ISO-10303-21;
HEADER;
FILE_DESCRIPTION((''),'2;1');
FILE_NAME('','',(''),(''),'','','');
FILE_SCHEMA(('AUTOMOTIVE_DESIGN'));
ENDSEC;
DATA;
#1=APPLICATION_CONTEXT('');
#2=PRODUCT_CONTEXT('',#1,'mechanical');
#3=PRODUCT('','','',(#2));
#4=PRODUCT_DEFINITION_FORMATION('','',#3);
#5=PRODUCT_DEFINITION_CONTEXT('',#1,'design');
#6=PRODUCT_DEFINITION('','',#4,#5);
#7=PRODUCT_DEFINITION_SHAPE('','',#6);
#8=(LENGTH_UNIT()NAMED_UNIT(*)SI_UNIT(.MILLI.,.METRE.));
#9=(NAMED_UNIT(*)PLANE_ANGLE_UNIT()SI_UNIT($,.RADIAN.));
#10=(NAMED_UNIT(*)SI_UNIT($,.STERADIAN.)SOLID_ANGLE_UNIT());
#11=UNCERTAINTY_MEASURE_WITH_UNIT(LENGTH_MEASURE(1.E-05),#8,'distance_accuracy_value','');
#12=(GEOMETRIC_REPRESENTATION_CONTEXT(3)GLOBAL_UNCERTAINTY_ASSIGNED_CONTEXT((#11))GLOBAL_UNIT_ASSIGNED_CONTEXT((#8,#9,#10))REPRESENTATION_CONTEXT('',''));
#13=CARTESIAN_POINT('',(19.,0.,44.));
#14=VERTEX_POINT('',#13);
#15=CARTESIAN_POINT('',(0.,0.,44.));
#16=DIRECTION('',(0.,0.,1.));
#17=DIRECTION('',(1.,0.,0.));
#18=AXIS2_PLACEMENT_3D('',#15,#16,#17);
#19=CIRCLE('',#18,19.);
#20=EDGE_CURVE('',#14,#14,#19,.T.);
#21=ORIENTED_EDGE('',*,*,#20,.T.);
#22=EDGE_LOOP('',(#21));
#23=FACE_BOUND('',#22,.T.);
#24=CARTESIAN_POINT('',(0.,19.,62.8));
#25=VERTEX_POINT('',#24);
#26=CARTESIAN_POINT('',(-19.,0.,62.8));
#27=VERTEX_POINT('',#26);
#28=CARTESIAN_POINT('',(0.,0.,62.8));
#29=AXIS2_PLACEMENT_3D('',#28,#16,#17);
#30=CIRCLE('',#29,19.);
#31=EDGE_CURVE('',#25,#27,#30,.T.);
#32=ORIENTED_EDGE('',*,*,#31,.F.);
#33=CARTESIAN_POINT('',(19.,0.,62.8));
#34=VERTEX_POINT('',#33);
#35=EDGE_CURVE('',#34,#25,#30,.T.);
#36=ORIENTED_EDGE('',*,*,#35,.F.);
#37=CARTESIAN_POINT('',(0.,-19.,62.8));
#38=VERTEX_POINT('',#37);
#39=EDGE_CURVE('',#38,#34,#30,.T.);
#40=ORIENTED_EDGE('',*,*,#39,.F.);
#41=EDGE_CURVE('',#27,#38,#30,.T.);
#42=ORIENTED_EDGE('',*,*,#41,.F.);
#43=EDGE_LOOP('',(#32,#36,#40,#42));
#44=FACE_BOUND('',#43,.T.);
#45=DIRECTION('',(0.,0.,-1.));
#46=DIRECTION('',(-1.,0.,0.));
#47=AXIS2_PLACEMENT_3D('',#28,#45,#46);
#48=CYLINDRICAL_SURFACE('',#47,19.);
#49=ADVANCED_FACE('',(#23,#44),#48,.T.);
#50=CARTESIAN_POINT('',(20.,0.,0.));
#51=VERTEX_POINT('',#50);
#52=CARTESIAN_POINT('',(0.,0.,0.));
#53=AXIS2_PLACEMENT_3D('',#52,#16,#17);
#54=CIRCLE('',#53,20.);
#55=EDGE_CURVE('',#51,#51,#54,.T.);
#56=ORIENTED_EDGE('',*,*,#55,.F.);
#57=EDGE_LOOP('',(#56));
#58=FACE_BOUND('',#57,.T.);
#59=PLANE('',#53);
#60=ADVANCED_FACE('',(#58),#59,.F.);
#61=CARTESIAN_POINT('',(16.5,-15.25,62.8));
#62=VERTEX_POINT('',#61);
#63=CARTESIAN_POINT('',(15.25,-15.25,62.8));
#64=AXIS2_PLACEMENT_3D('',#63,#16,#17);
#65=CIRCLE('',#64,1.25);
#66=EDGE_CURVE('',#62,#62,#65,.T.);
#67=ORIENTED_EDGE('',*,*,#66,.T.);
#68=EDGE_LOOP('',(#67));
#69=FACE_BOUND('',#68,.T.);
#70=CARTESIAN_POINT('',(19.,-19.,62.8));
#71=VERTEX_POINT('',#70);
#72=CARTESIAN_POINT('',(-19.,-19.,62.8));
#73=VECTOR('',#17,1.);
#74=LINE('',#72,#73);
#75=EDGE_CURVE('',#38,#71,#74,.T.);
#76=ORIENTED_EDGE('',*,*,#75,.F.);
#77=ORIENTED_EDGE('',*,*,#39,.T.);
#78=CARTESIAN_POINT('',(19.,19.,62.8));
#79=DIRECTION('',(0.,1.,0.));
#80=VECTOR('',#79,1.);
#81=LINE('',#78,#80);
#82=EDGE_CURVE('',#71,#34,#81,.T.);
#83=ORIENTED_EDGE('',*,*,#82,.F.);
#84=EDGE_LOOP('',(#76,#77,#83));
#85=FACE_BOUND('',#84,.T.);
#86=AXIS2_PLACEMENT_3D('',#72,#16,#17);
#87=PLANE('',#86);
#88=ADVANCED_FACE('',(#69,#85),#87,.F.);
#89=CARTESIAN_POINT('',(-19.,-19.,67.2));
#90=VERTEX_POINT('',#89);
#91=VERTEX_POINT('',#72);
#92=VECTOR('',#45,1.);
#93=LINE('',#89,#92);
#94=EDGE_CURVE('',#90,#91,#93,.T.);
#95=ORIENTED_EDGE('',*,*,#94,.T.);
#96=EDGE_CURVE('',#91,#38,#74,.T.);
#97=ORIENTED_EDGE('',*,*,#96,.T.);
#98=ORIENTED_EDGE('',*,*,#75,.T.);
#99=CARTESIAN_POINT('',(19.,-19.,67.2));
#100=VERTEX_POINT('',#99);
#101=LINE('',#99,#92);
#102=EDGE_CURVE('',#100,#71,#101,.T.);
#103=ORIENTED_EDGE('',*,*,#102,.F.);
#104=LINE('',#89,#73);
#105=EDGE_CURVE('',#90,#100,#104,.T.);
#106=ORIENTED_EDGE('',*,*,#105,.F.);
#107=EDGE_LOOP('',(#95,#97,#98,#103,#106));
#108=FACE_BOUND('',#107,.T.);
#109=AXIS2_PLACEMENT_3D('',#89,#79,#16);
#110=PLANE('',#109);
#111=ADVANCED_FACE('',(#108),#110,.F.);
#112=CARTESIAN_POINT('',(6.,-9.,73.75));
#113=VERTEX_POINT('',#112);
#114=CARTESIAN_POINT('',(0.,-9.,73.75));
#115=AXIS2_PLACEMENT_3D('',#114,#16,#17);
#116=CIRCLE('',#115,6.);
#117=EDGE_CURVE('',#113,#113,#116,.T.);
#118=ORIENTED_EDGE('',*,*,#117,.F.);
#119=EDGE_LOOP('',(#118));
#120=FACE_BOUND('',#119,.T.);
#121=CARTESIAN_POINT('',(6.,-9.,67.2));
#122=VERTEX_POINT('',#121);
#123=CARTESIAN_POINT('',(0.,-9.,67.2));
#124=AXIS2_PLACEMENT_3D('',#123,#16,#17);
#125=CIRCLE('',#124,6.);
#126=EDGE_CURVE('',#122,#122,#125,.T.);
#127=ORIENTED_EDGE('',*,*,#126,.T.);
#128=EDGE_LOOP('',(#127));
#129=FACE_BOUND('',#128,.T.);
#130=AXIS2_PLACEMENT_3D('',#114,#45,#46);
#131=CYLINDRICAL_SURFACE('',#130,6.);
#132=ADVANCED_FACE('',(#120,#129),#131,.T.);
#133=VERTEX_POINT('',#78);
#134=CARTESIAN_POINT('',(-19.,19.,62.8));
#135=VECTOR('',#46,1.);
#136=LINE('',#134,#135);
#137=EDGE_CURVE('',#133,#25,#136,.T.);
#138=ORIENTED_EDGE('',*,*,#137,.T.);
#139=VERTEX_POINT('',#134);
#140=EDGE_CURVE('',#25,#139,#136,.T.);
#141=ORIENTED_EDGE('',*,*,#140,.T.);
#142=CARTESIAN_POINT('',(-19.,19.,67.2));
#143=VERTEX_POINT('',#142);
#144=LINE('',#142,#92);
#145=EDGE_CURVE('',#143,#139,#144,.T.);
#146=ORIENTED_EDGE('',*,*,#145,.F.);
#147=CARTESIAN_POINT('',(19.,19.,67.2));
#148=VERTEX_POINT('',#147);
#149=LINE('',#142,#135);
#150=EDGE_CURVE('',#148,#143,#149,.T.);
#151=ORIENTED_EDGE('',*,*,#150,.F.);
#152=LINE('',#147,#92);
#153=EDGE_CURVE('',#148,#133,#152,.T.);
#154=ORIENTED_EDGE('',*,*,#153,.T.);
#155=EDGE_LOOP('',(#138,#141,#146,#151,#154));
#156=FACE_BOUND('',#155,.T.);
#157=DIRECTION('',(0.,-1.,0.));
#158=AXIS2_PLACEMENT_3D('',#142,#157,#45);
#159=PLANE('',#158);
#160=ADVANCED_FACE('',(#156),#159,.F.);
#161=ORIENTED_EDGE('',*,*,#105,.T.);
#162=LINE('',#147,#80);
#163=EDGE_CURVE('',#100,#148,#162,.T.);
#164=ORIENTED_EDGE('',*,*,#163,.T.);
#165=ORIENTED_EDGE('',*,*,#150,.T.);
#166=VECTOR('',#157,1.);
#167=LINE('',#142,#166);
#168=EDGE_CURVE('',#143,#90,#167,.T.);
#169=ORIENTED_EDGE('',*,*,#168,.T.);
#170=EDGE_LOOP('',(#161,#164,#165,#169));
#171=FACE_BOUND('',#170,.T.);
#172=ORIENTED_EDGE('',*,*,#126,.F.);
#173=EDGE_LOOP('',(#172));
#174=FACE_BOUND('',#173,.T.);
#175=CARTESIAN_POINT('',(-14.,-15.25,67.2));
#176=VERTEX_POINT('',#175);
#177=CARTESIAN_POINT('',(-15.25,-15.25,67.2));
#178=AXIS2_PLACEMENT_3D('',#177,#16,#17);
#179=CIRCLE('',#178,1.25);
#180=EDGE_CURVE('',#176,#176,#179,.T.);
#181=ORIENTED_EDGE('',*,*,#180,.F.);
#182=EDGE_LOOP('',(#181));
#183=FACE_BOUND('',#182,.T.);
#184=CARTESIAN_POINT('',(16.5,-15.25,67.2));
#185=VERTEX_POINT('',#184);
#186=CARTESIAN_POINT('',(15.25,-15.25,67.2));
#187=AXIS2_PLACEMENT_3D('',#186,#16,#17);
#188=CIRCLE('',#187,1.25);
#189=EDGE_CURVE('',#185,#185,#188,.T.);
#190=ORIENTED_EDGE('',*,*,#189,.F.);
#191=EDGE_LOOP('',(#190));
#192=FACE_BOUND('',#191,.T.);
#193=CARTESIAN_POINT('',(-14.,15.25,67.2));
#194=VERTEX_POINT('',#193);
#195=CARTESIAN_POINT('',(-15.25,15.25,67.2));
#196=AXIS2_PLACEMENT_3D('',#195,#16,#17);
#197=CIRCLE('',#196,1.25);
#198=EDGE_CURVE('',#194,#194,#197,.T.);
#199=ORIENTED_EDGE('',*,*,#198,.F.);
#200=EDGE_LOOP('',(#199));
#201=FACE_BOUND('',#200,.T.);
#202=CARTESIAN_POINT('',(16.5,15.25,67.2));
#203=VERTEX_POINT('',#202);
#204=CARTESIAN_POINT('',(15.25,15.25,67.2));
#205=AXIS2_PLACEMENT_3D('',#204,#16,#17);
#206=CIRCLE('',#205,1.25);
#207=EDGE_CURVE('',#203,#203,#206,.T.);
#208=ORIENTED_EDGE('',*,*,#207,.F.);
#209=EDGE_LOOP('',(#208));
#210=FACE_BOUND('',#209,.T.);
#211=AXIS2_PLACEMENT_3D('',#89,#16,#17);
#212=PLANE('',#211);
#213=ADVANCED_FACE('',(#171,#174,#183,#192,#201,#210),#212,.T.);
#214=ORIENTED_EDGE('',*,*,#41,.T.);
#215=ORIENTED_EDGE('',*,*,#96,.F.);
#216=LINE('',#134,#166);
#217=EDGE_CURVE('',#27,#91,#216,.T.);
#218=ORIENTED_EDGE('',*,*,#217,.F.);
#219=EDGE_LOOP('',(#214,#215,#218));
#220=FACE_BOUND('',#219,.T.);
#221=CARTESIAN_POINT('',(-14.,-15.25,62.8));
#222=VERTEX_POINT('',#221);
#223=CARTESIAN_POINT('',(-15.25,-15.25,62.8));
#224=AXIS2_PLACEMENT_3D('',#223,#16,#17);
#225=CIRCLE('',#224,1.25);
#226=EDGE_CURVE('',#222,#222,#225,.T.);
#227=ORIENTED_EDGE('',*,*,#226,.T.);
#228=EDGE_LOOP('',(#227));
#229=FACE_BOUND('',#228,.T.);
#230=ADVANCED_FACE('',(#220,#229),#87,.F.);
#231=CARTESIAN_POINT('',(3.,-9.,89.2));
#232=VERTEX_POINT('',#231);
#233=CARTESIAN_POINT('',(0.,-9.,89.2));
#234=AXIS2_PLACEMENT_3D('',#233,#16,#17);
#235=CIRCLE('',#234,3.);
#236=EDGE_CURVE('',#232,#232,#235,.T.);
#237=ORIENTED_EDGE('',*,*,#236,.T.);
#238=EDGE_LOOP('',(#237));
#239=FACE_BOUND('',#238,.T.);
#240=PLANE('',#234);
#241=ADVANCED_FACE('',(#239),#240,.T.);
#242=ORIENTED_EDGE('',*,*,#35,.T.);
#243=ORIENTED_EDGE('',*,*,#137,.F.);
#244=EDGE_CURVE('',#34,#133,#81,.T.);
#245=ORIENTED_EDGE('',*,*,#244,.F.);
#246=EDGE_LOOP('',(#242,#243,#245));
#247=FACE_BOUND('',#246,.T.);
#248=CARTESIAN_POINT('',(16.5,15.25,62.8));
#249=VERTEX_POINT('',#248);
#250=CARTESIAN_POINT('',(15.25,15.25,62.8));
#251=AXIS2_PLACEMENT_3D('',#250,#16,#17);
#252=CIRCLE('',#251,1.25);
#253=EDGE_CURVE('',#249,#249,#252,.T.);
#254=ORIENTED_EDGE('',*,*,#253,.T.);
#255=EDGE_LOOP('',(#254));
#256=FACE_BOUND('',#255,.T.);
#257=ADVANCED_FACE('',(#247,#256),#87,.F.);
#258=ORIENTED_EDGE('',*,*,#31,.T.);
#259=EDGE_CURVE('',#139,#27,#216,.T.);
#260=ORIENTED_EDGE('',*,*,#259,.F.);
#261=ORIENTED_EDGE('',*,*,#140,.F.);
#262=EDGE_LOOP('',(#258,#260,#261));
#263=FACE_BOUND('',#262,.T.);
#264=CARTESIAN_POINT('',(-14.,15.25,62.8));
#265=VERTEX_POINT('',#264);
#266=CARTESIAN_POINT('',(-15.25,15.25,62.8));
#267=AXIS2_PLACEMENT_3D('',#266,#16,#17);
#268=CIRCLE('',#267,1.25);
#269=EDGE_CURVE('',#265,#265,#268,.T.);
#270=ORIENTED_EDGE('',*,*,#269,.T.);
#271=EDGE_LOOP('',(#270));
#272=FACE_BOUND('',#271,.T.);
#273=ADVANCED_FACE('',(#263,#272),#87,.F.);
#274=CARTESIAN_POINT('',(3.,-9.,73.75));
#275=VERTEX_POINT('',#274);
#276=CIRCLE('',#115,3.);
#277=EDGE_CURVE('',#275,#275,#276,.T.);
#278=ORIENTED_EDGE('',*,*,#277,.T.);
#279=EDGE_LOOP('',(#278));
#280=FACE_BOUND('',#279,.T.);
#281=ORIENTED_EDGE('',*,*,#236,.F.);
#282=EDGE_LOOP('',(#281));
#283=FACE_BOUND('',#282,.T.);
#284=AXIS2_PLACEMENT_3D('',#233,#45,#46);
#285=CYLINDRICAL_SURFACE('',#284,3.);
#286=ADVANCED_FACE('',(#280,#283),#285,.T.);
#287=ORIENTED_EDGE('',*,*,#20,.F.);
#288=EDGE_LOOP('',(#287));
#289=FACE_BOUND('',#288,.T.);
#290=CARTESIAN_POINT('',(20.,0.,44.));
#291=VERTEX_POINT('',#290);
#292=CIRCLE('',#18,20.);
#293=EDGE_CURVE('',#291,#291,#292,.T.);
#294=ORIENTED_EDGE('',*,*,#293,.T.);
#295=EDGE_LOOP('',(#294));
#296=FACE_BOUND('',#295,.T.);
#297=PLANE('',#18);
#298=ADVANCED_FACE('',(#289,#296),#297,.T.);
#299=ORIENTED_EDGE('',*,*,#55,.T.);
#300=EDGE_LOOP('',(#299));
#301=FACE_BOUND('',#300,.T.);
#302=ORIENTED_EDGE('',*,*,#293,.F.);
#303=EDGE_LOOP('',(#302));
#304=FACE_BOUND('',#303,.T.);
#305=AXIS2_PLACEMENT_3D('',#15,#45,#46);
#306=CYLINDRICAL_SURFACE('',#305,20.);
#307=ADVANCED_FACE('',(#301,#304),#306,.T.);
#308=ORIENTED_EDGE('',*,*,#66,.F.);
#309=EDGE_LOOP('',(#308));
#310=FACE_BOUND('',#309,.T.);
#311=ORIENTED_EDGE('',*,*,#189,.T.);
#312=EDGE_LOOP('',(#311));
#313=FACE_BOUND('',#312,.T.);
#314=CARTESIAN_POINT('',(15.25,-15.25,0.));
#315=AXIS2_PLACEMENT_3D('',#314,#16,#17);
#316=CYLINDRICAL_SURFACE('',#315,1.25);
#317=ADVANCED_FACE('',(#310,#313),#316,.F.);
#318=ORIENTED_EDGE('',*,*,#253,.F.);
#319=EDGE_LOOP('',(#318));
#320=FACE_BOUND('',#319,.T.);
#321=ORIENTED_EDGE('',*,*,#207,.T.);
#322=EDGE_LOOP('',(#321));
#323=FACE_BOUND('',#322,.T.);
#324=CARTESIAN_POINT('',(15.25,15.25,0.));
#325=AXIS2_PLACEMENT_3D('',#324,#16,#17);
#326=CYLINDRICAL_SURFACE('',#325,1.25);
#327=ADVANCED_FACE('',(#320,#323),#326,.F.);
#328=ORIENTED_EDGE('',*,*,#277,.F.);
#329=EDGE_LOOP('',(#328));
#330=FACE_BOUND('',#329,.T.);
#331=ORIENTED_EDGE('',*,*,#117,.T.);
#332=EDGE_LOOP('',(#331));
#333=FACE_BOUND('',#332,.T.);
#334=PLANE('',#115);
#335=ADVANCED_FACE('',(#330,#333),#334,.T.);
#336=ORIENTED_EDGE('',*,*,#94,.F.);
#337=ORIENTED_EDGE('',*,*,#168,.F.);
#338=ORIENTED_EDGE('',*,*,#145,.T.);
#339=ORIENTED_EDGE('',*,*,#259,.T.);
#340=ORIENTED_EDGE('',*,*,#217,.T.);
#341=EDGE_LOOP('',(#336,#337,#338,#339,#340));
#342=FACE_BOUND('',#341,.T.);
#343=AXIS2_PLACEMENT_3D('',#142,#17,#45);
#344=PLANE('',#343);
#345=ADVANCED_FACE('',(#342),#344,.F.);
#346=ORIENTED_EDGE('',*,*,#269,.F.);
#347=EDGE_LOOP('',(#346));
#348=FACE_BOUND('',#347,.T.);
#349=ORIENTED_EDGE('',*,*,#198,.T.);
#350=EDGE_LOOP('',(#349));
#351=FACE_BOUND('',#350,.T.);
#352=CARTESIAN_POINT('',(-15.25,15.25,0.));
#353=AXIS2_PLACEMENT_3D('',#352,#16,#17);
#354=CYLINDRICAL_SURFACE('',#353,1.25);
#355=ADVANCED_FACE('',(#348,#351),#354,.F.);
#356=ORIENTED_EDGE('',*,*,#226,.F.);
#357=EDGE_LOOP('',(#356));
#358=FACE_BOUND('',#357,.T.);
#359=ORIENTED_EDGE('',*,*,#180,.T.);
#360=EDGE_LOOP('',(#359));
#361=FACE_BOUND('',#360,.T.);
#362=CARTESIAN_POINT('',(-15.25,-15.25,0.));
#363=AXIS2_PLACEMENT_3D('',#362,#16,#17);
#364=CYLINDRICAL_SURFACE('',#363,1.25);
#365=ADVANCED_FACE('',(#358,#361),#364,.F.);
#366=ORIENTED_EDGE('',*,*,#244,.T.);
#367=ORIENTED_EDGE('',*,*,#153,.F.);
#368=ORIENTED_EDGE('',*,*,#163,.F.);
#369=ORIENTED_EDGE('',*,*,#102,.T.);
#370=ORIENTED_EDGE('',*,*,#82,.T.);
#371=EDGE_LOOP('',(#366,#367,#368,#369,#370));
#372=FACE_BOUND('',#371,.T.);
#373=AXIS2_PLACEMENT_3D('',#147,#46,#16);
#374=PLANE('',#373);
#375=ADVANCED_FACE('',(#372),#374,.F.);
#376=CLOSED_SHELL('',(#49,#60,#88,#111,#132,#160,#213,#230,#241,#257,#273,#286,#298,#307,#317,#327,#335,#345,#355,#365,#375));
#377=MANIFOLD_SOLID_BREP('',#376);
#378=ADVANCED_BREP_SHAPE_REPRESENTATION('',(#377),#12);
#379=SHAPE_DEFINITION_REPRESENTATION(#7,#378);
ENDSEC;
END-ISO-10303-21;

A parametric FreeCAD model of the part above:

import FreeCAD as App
import Part
import Sketcher
from FreeCAD import Vector

doc = App.newDocument("Part")
params = doc.addObject("Spreadsheet::Sheet", "Params")
for row, (alias, value) in enumerate([
    ("sketch1_diameter", "40 mm"),
    ("pad1_length", "44 mm"),
    ("sketch2_diameter", "38 mm"),
    ("pad2_length", "18.8 mm"),
    ("sketch3_width", "38 mm"),
    ("pad3_length", "4.4 mm"),
    ("sketch4_diameter", "2.5 mm"),
    ("sketch5_diameter", "12 mm"),
    ("pad4_length", "6.55 mm"),
    ("sketch6_diameter", "6 mm"),
    ("pad5_length", "15.45 mm"),
], start=1):
    params.set(f"A{row}", alias)
    params.set(f"B{row}", "=" + value)
    params.setAlias(f"B{row}", alias)

body = doc.addObject("PartDesign::Body", "Body")

sketch1 = body.newObject("Sketcher::SketchObject", "Sketch")
sketch1.AttachmentSupport = (doc.getObject("XY_Plane"), [""])
sketch1.MapMode = "FlatFace"
sketch1.addGeometry(Part.Circle(Vector(0, 0, 0), Vector(0, 0, 1), 20), False)
sketch1.addConstraint([
    Sketcher.Constraint("Coincident", 0, 3, -1, 1),
    Sketcher.Constraint("Diameter", 0, 40.0),
])
sketch1.setExpression("Constraints[1]", "Params.sketch1_diameter")
pad1 = body.newObject("PartDesign::Pad", "Pad")
pad1.Profile = sketch1
pad1.setExpression("Length", "Params.pad1_length")

sketch2 = body.newObject("Sketcher::SketchObject", "Sketch001")
sketch2.AttachmentSupport = (doc.getObject("XY_Plane"), [""])
sketch2.MapMode = "FlatFace"
sketch2.AttachmentOffset = App.Placement(Vector(0, 0, 44), App.Rotation())
sketch2.addGeometry(Part.Circle(Vector(0, 0, 0), Vector(0, 0, 1), 19), False)
sketch2.addConstraint([
    Sketcher.Constraint("Coincident", 0, 3, -1, 1),
    Sketcher.Constraint("Diameter", 0, 38.0),
])
sketch2.setExpression("Constraints[1]", "Params.sketch2_diameter")
pad2 = body.newObject("PartDesign::Pad", "Pad001")
pad2.Profile = sketch2
pad2.setExpression("Length", "Params.pad2_length")

sketch3 = body.newObject("Sketcher::SketchObject", "Sketch002")
sketch3.AttachmentSupport = (doc.getObject("XY_Plane"), [""])
sketch3.MapMode = "FlatFace"
sketch3.AttachmentOffset = App.Placement(Vector(0, 0, 62.8), App.Rotation())
sketch3.addGeometry([
    Part.LineSegment(Vector(-19, 19, 0), Vector(-19, -19, 0)),
    Part.LineSegment(Vector(-19, -19, 0), Vector(19, -19, 0)),
    Part.LineSegment(Vector(19, -19, 0), Vector(19, 19, 0)),
    Part.LineSegment(Vector(19, 19, 0), Vector(-19, 19, 0)),
], False)
sketch3.addConstraint([
    Sketcher.Constraint("Coincident", 0, 2, 1, 1),
    Sketcher.Constraint("Coincident", 1, 2, 2, 1),
    Sketcher.Constraint("Coincident", 2, 2, 3, 1),
    Sketcher.Constraint("Coincident", 3, 2, 0, 1),
    Sketcher.Constraint("Vertical", 0),
    Sketcher.Constraint("Horizontal", 1),
    Sketcher.Constraint("Vertical", 2),
    Sketcher.Constraint("Horizontal", 3),
    Sketcher.Constraint("Symmetric", 0, 2, 2, 2, -1, 1),
    Sketcher.Constraint("Equal", 3, 0),
    Sketcher.Constraint("DistanceX", 1, 1, 1, 2, 38.0),
])
sketch3.setExpression("Constraints[10]", "Params.sketch3_width")
pad3 = body.newObject("PartDesign::Pad", "Pad002")
pad3.Profile = sketch3
pad3.setExpression("Length", "Params.pad3_length")

sketch4 = body.newObject("Sketcher::SketchObject", "Sketch003")
sketch4.AttachmentSupport = (doc.getObject("XY_Plane"), [""])
sketch4.MapMode = "FlatFace"
sketch4.AttachmentOffset = App.Placement(Vector(0, 0, 67.2), App.Rotation())
sketch4.addGeometry([
    Part.Circle(Vector(-15.2, 15.2, 0), Vector(0, 0, 1), 1.2),
    Part.Circle(Vector(15.2, 15.2, 0), Vector(0, 0, 1), 1.2),
    Part.Circle(Vector(15.2, -15.2, 0), Vector(0, 0, 1), 1.2),
    Part.Circle(Vector(-15.2, -15.2, 0), Vector(0, 0, 1), 1.2),
], False)
sketch4.addConstraint([
    Sketcher.Constraint("Equal", 0, 1),
    Sketcher.Constraint("Equal", 1, 2),
    Sketcher.Constraint("Equal", 2, 3),
    Sketcher.Constraint("Symmetric", 0, 3, 2, 3, -1, 1),
    Sketcher.Constraint("Symmetric", 1, 3, 3, 3, -1, 1),
    Sketcher.Constraint("Symmetric", 0, 3, 1, 3, -2),
    Sketcher.Constraint("Diameter", 0, 2.5),
    Sketcher.Constraint("DistanceX", 0, 3, 1, 3, 30.5),
    Sketcher.Constraint("DistanceY", 2, 3, 1, 3, 30.5),
])
sketch4.setExpression("Constraints[6]", "Params.sketch4_diameter")
pocket1 = body.newObject("PartDesign::Pocket", "Pocket")
pocket1.Profile = sketch4
pocket1.Type = "ThroughAll"

sketch5 = body.newObject("Sketcher::SketchObject", "Sketch004")
sketch5.AttachmentSupport = (doc.getObject("XY_Plane"), [""])
sketch5.MapMode = "FlatFace"
sketch5.AttachmentOffset = App.Placement(Vector(0, 0, 67.2), App.Rotation())
sketch5.addGeometry(Part.Circle(Vector(0, -9, 0), Vector(0, 0, 1), 6), False)
sketch5.addConstraint([
    Sketcher.Constraint("PointOnObject", 0, 3, -2),
    Sketcher.Constraint("Diameter", 0, 12.0),
    Sketcher.Constraint("DistanceY", 0, 3, -1, 1, 9.0),
])
sketch5.setExpression("Constraints[1]", "Params.sketch5_diameter")
pad4 = body.newObject("PartDesign::Pad", "Pad003")
pad4.Profile = sketch5
pad4.setExpression("Length", "Params.pad4_length")

sketch6 = body.newObject("Sketcher::SketchObject", "Sketch005")
sketch6.AttachmentSupport = (doc.getObject("XY_Plane"), [""])
sketch6.MapMode = "FlatFace"
sketch6.AttachmentOffset = App.Placement(Vector(0, 0, 73.75), App.Rotation())
sketch6.addGeometry(Part.Circle(Vector(0, -9, 0), Vector(0, 0, 1), 3), False)
sketch6.addConstraint([
    Sketcher.Constraint("PointOnObject", 0, 3, -2),
    Sketcher.Constraint("Diameter", 0, 6.0),
    Sketcher.Constraint("DistanceY", 0, 3, -1, 1, 9.0),
])
sketch6.setExpression("Constraints[1]", "Params.sketch6_diameter")
pad5 = body.newObject("PartDesign::Pad", "Pad004")
pad5.Profile = sketch6
pad5.setExpression("Length", "Params.pad5_length")

doc.recompute()
